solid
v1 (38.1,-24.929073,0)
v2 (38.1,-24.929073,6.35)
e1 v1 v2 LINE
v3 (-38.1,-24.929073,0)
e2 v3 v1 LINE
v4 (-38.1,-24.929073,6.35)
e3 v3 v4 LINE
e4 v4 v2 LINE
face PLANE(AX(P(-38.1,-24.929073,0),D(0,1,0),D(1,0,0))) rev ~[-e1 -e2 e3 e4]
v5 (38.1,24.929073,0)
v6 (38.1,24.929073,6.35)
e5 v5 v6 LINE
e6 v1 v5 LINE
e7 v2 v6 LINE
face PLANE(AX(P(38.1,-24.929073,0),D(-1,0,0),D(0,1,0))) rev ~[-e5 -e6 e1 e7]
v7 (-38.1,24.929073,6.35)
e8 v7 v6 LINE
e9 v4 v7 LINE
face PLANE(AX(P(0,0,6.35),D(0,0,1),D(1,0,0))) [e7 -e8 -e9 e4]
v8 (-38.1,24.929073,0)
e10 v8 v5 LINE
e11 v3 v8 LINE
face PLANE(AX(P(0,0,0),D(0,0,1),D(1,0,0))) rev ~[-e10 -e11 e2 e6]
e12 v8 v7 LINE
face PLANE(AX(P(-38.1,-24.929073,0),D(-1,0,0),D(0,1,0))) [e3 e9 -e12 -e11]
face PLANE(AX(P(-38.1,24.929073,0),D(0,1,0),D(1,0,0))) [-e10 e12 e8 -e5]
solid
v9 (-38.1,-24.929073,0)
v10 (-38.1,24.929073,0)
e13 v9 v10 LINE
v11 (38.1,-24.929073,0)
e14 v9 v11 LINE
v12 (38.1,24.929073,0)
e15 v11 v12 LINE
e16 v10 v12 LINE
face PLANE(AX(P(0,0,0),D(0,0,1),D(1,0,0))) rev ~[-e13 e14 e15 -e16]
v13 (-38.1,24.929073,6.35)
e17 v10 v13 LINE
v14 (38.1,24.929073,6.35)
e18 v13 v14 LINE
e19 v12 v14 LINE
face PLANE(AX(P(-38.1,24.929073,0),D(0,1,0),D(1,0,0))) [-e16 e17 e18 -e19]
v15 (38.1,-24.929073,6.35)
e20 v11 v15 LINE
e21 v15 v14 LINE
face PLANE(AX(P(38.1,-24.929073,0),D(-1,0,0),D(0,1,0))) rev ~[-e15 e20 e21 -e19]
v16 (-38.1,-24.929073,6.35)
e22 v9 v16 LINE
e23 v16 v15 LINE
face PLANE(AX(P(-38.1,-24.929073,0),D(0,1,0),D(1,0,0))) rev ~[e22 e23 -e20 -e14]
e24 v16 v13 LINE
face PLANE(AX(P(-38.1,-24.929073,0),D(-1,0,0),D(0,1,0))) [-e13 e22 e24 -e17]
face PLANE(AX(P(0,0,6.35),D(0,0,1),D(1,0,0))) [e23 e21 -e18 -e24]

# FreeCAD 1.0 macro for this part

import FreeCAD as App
import Part
import Sketcher

V = App.Vector
Q = App.Units.Quantity

doc = App.newDocument("Part")
body = doc.addObject("PartDesign::Body", "Body")

# Sketch on XY plane
sketch1 = body.newObject("Sketcher::SketchObject", "Sketch")
sketch1.AttachmentSupport = (doc.getObject("XY_Plane"), [""])
sketch1.MapMode = "FlatFace"
sketch1.addGeometry([
    Part.LineSegment(V(-38, 25, 0), V(-38, -25, 0)),
    Part.LineSegment(V(-38, -25, 0), V(38, -25, 0)),
    Part.LineSegment(V(38, -25, 0), V(38, 25, 0)),
    Part.LineSegment(V(38, 25, 0), V(-38, 25, 0)),
], False)
sketch1.addConstraint([
    Sketcher.Constraint("Coincident", 0, 2, 1, 1),
    Sketcher.Constraint("Coincident", 1, 2, 2, 1),
    Sketcher.Constraint("Coincident", 2, 2, 3, 1),
    Sketcher.Constraint("Coincident", 3, 2, 0, 1),
    Sketcher.Constraint("Vertical", 0),
    Sketcher.Constraint("Horizontal", 1),
    Sketcher.Constraint("Vertical", 2),
    Sketcher.Constraint("Horizontal", 3),
    Sketcher.Constraint("Symmetric", 0, 2, 2, 2, -1, 1),
    Sketcher.Constraint("DistanceX", 1, 1, 1, 2, Q("3 in")),
    Sketcher.Constraint("DistanceY", 0, 2, 0, 1, 49.858145),
])
pad1 = body.newObject("PartDesign::Pad", "Pad")
pad1.Profile = sketch1
pad1.Length = Q("0.25 in")
body2 = doc.addObject("PartDesign::Body", "Body001")

# Sketch on XY plane
sketch2 = body2.newObject("Sketcher::SketchObject", "Sketch001")
sketch2.AttachmentSupport = (doc.getObject("XY_Plane001"), [""])
sketch2.MapMode = "FlatFace"
sketch2.addGeometry([
    Part.LineSegment(V(-38, 25, 0), V(-38, -25, 0)),
    Part.LineSegment(V(-38, -25, 0), V(38, -25, 0)),
    Part.LineSegment(V(38, -25, 0), V(38, 25, 0)),
    Part.LineSegment(V(38, 25, 0), V(-38, 25, 0)),
], False)
sketch2.addConstraint([
    Sketcher.Constraint("Coincident", 0, 2, 1, 1),
    Sketcher.Constraint("Coincident", 1, 2, 2, 1),
    Sketcher.Constraint("Coincident", 2, 2, 3, 1),
    Sketcher.Constraint("Coincident", 3, 2, 0, 1),
    Sketcher.Constraint("Vertical", 0),
    Sketcher.Constraint("Horizontal", 1),
    Sketcher.Constraint("Vertical", 2),
    Sketcher.Constraint("Horizontal", 3),
    Sketcher.Constraint("Symmetric", 0, 2, 2, 2, -1, 1),
    Sketcher.Constraint("DistanceX", 1, 1, 1, 2, Q("3 in")),
    Sketcher.Constraint("DistanceY", 0, 2, 0, 1, 49.858145),
])
pad2 = body2.newObject("PartDesign::Pad", "Pad001")
pad2.Profile = sketch2
pad2.Length = Q("0.25 in")

doc.recompute()
